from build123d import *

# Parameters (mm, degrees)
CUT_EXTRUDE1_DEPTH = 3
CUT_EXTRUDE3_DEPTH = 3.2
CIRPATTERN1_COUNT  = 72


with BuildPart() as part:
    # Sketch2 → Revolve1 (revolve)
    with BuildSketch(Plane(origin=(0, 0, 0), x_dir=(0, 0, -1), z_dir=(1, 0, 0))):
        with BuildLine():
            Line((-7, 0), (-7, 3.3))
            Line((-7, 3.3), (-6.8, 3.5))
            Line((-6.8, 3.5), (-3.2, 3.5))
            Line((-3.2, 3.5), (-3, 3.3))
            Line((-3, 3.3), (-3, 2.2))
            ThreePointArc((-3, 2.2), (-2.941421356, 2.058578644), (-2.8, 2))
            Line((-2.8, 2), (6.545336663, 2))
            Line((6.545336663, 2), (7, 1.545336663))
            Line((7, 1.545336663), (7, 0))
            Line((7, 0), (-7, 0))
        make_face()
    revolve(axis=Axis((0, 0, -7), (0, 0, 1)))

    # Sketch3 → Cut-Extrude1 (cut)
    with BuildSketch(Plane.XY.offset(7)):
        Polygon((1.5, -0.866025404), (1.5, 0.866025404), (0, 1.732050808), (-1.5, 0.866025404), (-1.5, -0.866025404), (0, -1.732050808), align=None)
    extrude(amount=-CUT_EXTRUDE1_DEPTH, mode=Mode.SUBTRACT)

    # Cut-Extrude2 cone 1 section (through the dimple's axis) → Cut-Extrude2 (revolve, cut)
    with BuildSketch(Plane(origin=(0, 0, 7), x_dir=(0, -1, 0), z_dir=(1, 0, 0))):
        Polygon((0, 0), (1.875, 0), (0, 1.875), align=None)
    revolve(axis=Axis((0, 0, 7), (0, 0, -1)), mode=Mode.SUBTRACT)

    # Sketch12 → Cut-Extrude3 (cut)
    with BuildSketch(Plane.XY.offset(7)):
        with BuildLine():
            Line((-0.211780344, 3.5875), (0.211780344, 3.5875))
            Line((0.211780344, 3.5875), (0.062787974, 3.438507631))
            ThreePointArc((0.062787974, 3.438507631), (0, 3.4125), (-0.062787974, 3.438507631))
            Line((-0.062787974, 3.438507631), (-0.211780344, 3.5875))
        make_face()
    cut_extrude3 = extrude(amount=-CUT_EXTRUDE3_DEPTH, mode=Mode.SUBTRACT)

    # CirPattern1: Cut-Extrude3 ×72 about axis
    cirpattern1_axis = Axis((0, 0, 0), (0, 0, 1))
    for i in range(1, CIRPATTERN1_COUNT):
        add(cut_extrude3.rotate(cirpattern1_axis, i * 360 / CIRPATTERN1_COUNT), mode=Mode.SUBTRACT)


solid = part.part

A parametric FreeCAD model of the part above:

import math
import FreeCAD as App
import Part
import Sketcher
from FreeCAD import Vector
Q = App.Units.Quantity

doc = App.newDocument("Part")
body = doc.addObject("PartDesign::Body", "Body")

sketch1 = body.newObject("Sketcher::SketchObject", "Sketch")
sketch1.AttachmentSupport = (doc.getObject("YZ_Plane"), [""])
sketch1.MapMode = "FlatFace"
sketch1.addGeometry([
    Part.LineSegment(Vector(3.3, 7, 0), Vector(0, 7, 0)),
    Part.LineSegment(Vector(0, 7, 0), Vector(0, -7, 0)),
    Part.LineSegment(Vector(0, -7, 0), Vector(1.55, -7, 0)),
    Part.LineSegment(Vector(1.55, -7, 0), Vector(2, -6.55, 0)),
    Part.LineSegment(Vector(2, -6.55, 0), Vector(2, 2.8, 0)),
    Part.ArcOfCircle(Part.Circle(Vector(2.2, 2.8, 0), Vector(0, 0, 1), 0.2), math.radians(90), math.radians(180)),
    Part.LineSegment(Vector(2.2, 3, 0), Vector(3.3, 3, 0)),
    Part.LineSegment(Vector(3.3, 3, 0), Vector(3.5, 3.2, 0)),
    Part.LineSegment(Vector(3.5, 3.2, 0), Vector(3.5, 6.8, 0)),
    Part.LineSegment(Vector(3.5, 6.8, 0), Vector(3.3, 7, 0)),
], False)
sketch1.addConstraint([
    Sketcher.Constraint("Coincident", 0, 2, 1, 1),
    Sketcher.Constraint("Coincident", 1, 2, 2, 1),
    Sketcher.Constraint("Coincident", 2, 2, 3, 1),
    Sketcher.Constraint("Coincident", 3, 2, 4, 1),
    Sketcher.Constraint("Tangent", 4, 2, 5, 2),
    Sketcher.Constraint("Tangent", 5, 1, 6, 1),
    Sketcher.Constraint("Coincident", 6, 2, 7, 1),
    Sketcher.Constraint("Coincident", 7, 2, 8, 1),
    Sketcher.Constraint("Coincident", 8, 2, 9, 1),
    Sketcher.Constraint("Coincident", 9, 2, 0, 1),
    Sketcher.Constraint("Horizontal", 0),
    Sketcher.Constraint("Vertical", 1),
    Sketcher.Constraint("Horizontal", 2),
    Sketcher.Constraint("Vertical", 4),
    Sketcher.Constraint("Horizontal", 6),
    Sketcher.Constraint("Vertical", 8),
    Sketcher.Constraint("Symmetric", 0, 2, 1, 2, -1, 1),
    Sketcher.Constraint("Parallel", 3, 7),
    Sketcher.Constraint("Perpendicular", 7, 9),
    Sketcher.Constraint("Vertical", 6, 2, 9, 2),
    Sketcher.Constraint("Equal", 7, 9),
    Sketcher.Constraint("Radius", 5, 0.2),
    Sketcher.Constraint("DistanceY", 1, 2, 1, 1, 14.0),
    Sketcher.Constraint("DistanceX", 0, 2, 0, 1, 3.3),
    Sketcher.Constraint("DistanceX", 6, 1, 6, 2, 1.1),
    Sketcher.Constraint("DistanceY", 8, 1, 8, 2, 3.6),
    Sketcher.Constraint("DistanceY", -1, 1, 5, 1, 3.0),
    Sketcher.Constraint("Distance", 3, 0.642991),
])
revolution = body.newObject("PartDesign::Revolution", "Revolution")
revolution.Profile = sketch1
revolution.ReferenceAxis = (sketch1, ["V_Axis"])
revolution.Angle = 360

sketch2 = body.newObject("Sketcher::SketchObject", "Sketch001")
sketch2.AttachmentSupport = (doc.getObject("XY_Plane"), [""])
sketch2.MapMode = "FlatFace"
sketch2.AttachmentOffset = App.Placement(Vector(0, 0, 7), App.Rotation())
sketch2.addGeometry([
    Part.LineSegment(Vector(1.5, -0.9, 0), Vector(1.5, 0.9, 0)),
    Part.LineSegment(Vector(1.5, 0.9, 0), Vector(0, 1.7, 0)),
    Part.LineSegment(Vector(0, 1.7, 0), Vector(-1.5, 0.9, 0)),
    Part.LineSegment(Vector(-1.5, 0.9, 0), Vector(-1.5, -0.9, 0)),
    Part.LineSegment(Vector(-1.5, -0.9, 0), Vector(0, -1.7, 0)),
    Part.LineSegment(Vector(0, -1.7, 0), Vector(1.5, -0.9, 0)),
], False)
sketch2.addConstraint([
    Sketcher.Constraint("Coincident", 0, 2, 1, 1),
    Sketcher.Constraint("Coincident", 1, 2, 2, 1),
    Sketcher.Constraint("Coincident", 2, 2, 3, 1),
    Sketcher.Constraint("Coincident", 3, 2, 4, 1),
    Sketcher.Constraint("Coincident", 4, 2, 5, 1),
    Sketcher.Constraint("Coincident", 5, 2, 0, 1),
    Sketcher.Constraint("Vertical", 0),
    Sketcher.Constraint("Vertical", 3),
    Sketcher.Constraint("Symmetric", 0, 2, 3, 2, -1, 1),
    Sketcher.Constraint("Symmetric", 1, 2, 4, 2, -1, 1),
    Sketcher.Constraint("PointOnObject", 1, 2, -2),
    Sketcher.Constraint("Parallel", 2, 5),
    Sketcher.Constraint("Horizontal", 0, 2, 2, 2),
    Sketcher.Constraint("Angle", 1, Q("150 deg")),
    Sketcher.Constraint("DistanceX", 2, 2, 0, 2, 3.0),
    Sketcher.Constraint("DistanceY", 0, 1, 0, 2, 1.732051),
])
pocket1 = body.newObject("PartDesign::Pocket", "Pocket")
pocket1.Profile = sketch2
pocket1.Length = 3

sketch3 = body.newObject("Sketcher::SketchObject", "Sketch002")
sketch3.AttachmentSupport = (doc.getObject("YZ_Plane"), [""])
sketch3.MapMode = "FlatFace"
sketch3.addGeometry([
    Part.LineSegment(Vector(0, 7, 0), Vector(-1.9, 7, 0)),
    Part.LineSegment(Vector(-1.9, 7, 0), Vector(0, 5.1, 0)),
    Part.LineSegment(Vector(0, 5.1, 0), Vector(0, 7, 0)),
], False)
sketch3.addConstraint([
    Sketcher.Constraint("Coincident", 0, 2, 1, 1),
    Sketcher.Constraint("Coincident", 1, 2, 2, 1),
    Sketcher.Constraint("Coincident", 2, 2, 0, 1),
    Sketcher.Constraint("Horizontal", 0),
    Sketcher.Constraint("Vertical", 2),
    Sketcher.Constraint("PointOnObject", 1, 2, -2),
    Sketcher.Constraint("Equal", 0, 2),
    Sketcher.Constraint("DistanceY", -1, 1, 0, 2, 7.0),
    Sketcher.Constraint("DistanceX", 0, 2, 0, 1, 1.875),
])
groove = body.newObject("PartDesign::Groove", "Groove")
groove.Profile = sketch3
groove.ReferenceAxis = (sketch3, ["V_Axis"])
groove.Angle = 360

sketch4 = body.newObject("Sketcher::SketchObject", "Sketch003")
sketch4.AttachmentSupport = (doc.getObject("XY_Plane"), [""])
sketch4.MapMode = "FlatFace"
sketch4.AttachmentOffset = App.Placement(Vector(0, 0, 7), App.Rotation())
sketch4.addGeometry([
    Part.LineSegment(Vector(0.21, 3.59, 0), Vector(-0.21, 3.59, 0)),
    Part.LineSegment(Vector(-0.21, 3.59, 0), Vector(-0.06, 3.44, 0)),
    Part.ArcOfCircle(Part.Circle(Vector(0, 3.5, 0), Vector(0, 0, 1), 0.09), math.radians(-135), math.radians(-45)),
    Part.LineSegment(Vector(0.06, 3.44, 0), Vector(0.21, 3.59, 0)),
], False)
sketch4.addConstraint([
    Sketcher.Constraint("Coincident", 0, 2, 1, 1),
    Sketcher.Constraint("Tangent", 1, 2, 2, 1),
    Sketcher.Constraint("Tangent", 2, 2, 3, 1),
    Sketcher.Constraint("Coincident", 3, 2, 0, 1),
    Sketcher.Constraint("Horizontal", 0),
    Sketcher.Constraint("Symmetric", 1, 2, 2, 2, -2),
    Sketcher.Constraint("Perpendicular", 1, 3),
    Sketcher.Constraint("Radius", 2, 0.088796),
    Sketcher.Constraint("DistanceX", 0, 2, 0, 1, 0.423561),
    Sketcher.Constraint("DistanceY", -1, 1, 0, 2, 3.5875),
])
pocket2 = body.newObject("PartDesign::Pocket", "Pocket001")
pocket2.Profile = sketch4
pocket2.Length = 3.2
doc.recompute()

polarpattern = body.newObject("PartDesign::PolarPattern", "PolarPattern")
polarpattern.Originals = [pocket2]
polarpattern.Axis = (doc.getObject("Z_Axis"), [""])
polarpattern.Angle = 360
polarpattern.Occurrences = 72
body.Tip = polarpattern

doc.recompute()
